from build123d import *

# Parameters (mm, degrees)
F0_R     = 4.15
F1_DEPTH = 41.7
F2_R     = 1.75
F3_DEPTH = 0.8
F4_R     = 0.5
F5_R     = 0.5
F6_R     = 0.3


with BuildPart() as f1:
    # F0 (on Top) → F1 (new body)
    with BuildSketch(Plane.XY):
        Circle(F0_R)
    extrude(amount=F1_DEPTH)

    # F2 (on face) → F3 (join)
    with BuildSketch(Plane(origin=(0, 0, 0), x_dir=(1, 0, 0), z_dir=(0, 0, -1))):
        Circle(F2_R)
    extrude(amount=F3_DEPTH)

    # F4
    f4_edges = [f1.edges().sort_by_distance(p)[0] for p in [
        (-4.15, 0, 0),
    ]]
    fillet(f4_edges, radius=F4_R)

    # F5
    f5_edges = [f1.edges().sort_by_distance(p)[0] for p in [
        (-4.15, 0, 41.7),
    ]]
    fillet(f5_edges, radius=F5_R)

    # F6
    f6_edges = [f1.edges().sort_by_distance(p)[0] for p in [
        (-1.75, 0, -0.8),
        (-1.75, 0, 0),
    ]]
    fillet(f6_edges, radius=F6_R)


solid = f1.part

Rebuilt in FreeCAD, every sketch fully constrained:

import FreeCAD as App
import Part
import Sketcher

V = App.Vector
Q = App.Units.Quantity


def edges_at(feature, points):
    """Names of the edges that pass closest to the given points."""
    edges = feature.Shape.Edges
    near = lambda p: min(range(len(edges)), key=lambda i: edges[i].distToShape(Part.Vertex(*p))[0])
    return sorted({f"Edge{near(p) + 1}" for p in points})

doc = App.newDocument("Part")
body = doc.addObject("PartDesign::Body", "Body")

sketch1 = doc.addObject("Sketcher::SketchObject", "Sketch")
body.addObject(sketch1)
sketch1.AttachmentSupport = (doc.XY_Plane, [""])
sketch1.MapMode = "FlatFace"
sketch1.addGeometry(Part.Circle(V(0, 0, 0), V(0, 0, 1), 4.2), False)
sketch1.addConstraint(Sketcher.Constraint("Coincident", 0, 3, -1, 1))
sketch1.addConstraint(Sketcher.Constraint("Diameter", 0, Q("8.3 mm")))
pad1 = doc.addObject("PartDesign::Pad", "Pad")
body.addObject(pad1)
pad1.Profile = sketch1
pad1.Length = 41.7

sketch2 = doc.addObject("Sketcher::SketchObject", "Sketch001")
body.addObject(sketch2)
sketch2.AttachmentSupport = (doc.XY_Plane, [""])
sketch2.MapMode = "FlatFace"
sketch2.addGeometry(Part.Circle(V(0, 0, 0), V(0, 0, 1), 1.8), False)
sketch2.addConstraint(Sketcher.Constraint("Coincident", 0, 3, -1, 1))
sketch2.addConstraint(Sketcher.Constraint("Diameter", 0, Q("3.5 mm")))
pad2 = doc.addObject("PartDesign::Pad", "Pad001")
body.addObject(pad2)
pad2.Profile = sketch2
pad2.Length = 0.8
pad2.Reversed = True
doc.recompute()

fillet = doc.addObject("PartDesign::Fillet", "Fillet")
body.addObject(fillet)
fillet.Base = (pad2, edges_at(pad2, [(-4.15, 0, 0)]))
fillet.Radius = 0.5
doc.recompute()

fillet2 = doc.addObject("PartDesign::Fillet", "Fillet001")
body.addObject(fillet2)
fillet2.Base = (fillet, edges_at(fillet, [(-4.15, 0, 41.7)]))
fillet2.Radius = 0.5
doc.recompute()

fillet3 = doc.addObject("PartDesign::Fillet", "Fillet002")
body.addObject(fillet3)
fillet3.Base = (fillet2, edges_at(fillet2, [(-1.75, 0, -0.8), (-1.75, 0, 0)]))
fillet3.Radius = 0.3

doc.recompute()
